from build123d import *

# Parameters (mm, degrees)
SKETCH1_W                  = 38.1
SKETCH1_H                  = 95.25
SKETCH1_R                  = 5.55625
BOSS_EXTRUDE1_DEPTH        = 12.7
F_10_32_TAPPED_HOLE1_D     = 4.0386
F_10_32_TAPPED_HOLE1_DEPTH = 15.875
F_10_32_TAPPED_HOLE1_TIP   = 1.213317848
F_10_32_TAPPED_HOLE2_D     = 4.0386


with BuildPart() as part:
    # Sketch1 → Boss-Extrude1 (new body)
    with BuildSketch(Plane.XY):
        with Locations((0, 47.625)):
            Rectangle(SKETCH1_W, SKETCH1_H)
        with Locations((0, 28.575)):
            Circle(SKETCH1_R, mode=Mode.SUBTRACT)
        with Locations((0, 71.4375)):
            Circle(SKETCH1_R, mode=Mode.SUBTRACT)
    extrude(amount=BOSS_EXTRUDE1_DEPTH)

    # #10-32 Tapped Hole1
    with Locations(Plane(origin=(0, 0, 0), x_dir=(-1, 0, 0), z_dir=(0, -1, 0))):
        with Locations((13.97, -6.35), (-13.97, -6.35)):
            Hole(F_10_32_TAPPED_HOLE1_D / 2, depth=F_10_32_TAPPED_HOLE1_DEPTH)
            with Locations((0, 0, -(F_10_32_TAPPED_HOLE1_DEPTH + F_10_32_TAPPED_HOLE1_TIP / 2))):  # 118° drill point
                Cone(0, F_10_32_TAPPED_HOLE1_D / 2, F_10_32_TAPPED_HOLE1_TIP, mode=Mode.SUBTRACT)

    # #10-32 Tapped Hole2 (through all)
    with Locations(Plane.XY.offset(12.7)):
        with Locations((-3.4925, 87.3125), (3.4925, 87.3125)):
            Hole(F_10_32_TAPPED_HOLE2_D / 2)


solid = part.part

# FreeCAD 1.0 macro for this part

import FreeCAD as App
import Part
import Sketcher

V = App.Vector
Q = App.Units.Quantity


def add_polygon(sketch, points):
    """Adds a closed chain of lines whose ends are joined by coincident constraints."""
    first, n = sketch.GeometryCount, len(points)
    for a, b in zip(points, points[1:] + points[:1]):
        sketch.addGeometry(Part.LineSegment(App.Vector(*a, 0), App.Vector(*b, 0)), False)
    for i in range(n):
        sketch.addConstraint(Sketcher.Constraint("Coincident", first + i, 2, first + (i + 1) % n, 1))

doc = App.newDocument("Part")
body = doc.addObject("PartDesign::Body", "Body")

# Sketch on XY plane
sketch1 = body.newObject("Sketcher::SketchObject", "Sketch")
sketch1.AttachmentSupport = (doc.getObject("XY_Plane"), [""])
sketch1.MapMode = "FlatFace"
add_polygon(sketch1, [(-19, 95), (-19, 0), (19, 0), (19, 95)])  # lines 0-3
sketch1.addGeometry(Part.Circle(V(0, 29, 0), V(0, 0, 1), 6), False)  # 4
sketch1.addGeometry(Part.Circle(V(0, 71, 0), V(0, 0, 1), 6), False)  # 5
sketch1.addConstraint(Sketcher.Constraint("Vertical", 0))
sketch1.addConstraint(Sketcher.Constraint("Horizontal", 1))
sketch1.addConstraint(Sketcher.Constraint("Vertical", 2))
sketch1.addConstraint(Sketcher.Constraint("Horizontal", 3))
sketch1.addConstraint(Sketcher.Constraint("Equal", 4, 5))
sketch1.addConstraint(Sketcher.Constraint("Symmetric", 0, 2, 1, 2, -1, 1))
sketch1.addConstraint(Sketcher.Constraint("PointOnObject", 4, 3, -2))
sketch1.addConstraint(Sketcher.Constraint("PointOnObject", 5, 3, -2))
sketch1.addConstraint(Sketcher.Constraint("Diameter", 4, Q("0.4375 in")))
sketch1.addConstraint(Sketcher.Constraint("DistanceX", 1, 1, 1, 2, Q("1.5 in")))
sketch1.addConstraint(Sketcher.Constraint("DistanceY", 0, 2, 0, 1, Q("3.75 in")))
sketch1.addConstraint(Sketcher.Constraint("DistanceY", -1, 1, 4, 3, Q("1.125 in")))
sketch1.addConstraint(Sketcher.Constraint("DistanceY", -1, 1, 5, 3, Q("2.8125 in")))
pad1 = body.newObject("PartDesign::Pad", "Pad")
pad1.Profile = sketch1
pad1.Length = Q("0.5 in")

# Sketch on XZ plane
sketch2 = body.newObject("Sketcher::SketchObject", "Sketch001")
sketch2.AttachmentSupport = (doc.getObject("XZ_Plane"), [""])
sketch2.MapMode = "FlatFace"
sketch2.addGeometry(Part.Circle(V(-14, 6.3, 0), V(0, 0, 1), 2), False)
sketch2.addGeometry(Part.Circle(V(14, 6.3, 0), V(0, 0, 1), 2), False)
sketch2.addConstraint(Sketcher.Constraint("Equal", 0, 1))
sketch2.addConstraint(Sketcher.Constraint("Symmetric", 0, 3, 1, 3, -2))
sketch2.addConstraint(Sketcher.Constraint("Diameter", 0, Q("0.159 in")))
sketch2.addConstraint(Sketcher.Constraint("DistanceX", 0, 3, 1, 3, Q("1.1 in")))
sketch2.addConstraint(Sketcher.Constraint("DistanceY", -1, 1, 0, 3, Q("0.25 in")))
doc.recompute()
hole = body.newObject("PartDesign::Hole", "Hole")
hole.Profile = sketch2
hole.ThreadType = "None"
hole.Diameter = Q("0.159 in")
hole.DepthType = "Dimension"
hole.Depth = Q("0.625 in")
hole.DrillPoint = "Angled"
hole.DrillPointAngle = 118

# Sketch on XY plane
sketch3 = body.newObject("Sketcher::SketchObject", "Sketch002")
sketch3.AttachmentSupport = (doc.getObject("XY_Plane"), [""])
sketch3.MapMode = "FlatFace"
sketch3.AttachmentOffset = App.Placement(V(0, 0, 0.5 * 25.4), App.Rotation())
sketch3.addGeometry(Part.Circle(V(-3.5, 87.3, 0), V(0, 0, 1), 2), False)
sketch3.addGeometry(Part.Circle(V(3.5, 87.3, 0), V(0, 0, 1), 2), False)
sketch3.addConstraint(Sketcher.Constraint("Equal", 0, 1))
sketch3.addConstraint(Sketcher.Constraint("Symmetric", 0, 3, 1, 3, -2))
sketch3.addConstraint(Sketcher.Constraint("Diameter", 0, Q("0.159 in")))
sketch3.addConstraint(Sketcher.Constraint("DistanceY", -1, 1, 0, 3, Q("3.4375 in")))
sketch3.addConstraint(Sketcher.Constraint("DistanceX", 0, 3, 1, 3, Q("0.275 in")))
doc.recompute()
hole2 = body.newObject("PartDesign::Hole", "Hole001")
hole2.Profile = sketch3
hole2.ThreadType = "None"
hole2.Diameter = Q("0.159 in")
hole2.DepthType = "ThroughAll"

doc.recompute()
